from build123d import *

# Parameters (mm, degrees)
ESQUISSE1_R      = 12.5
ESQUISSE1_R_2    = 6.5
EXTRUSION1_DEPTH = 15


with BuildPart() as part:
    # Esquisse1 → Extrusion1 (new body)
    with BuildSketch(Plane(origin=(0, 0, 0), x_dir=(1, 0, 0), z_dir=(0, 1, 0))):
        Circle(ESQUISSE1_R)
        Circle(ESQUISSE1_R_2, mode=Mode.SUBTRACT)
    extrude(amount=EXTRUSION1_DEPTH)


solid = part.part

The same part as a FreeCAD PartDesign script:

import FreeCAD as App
import Part
import Sketcher

doc = App.newDocument("Part")
params = doc.addObject("Spreadsheet::Sheet", "Params")
for row, (alias, value) in enumerate([
    ("sketch1_diameter", "25 mm"),
    ("sketch1_diameter2", "13 mm"),
    ("pad1_length", "15 mm"),
], start=1):
    params.set(f"A{row}", alias)
    params.set(f"B{row}", "=" + value)
    params.setAlias(f"B{row}", alias)

body = doc.addObject("PartDesign::Body", "Body")

sketch1 = body.newObject("Sketcher::SketchObject", "Sketch")
sketch1.AttachmentSupport = (doc.getObject("XZ_Plane"), [""])
sketch1.MapMode = "FlatFace"
sketch1.addGeometry(Part.Circle(App.Vector(0, 0, 0), App.Vector(0, 0, 1), 12), False)
sketch1.addGeometry(Part.Circle(App.Vector(0, 0, 0), App.Vector(0, 0, 1), 6), False)
sketch1.addConstraint(Sketcher.Constraint("Coincident", 0, 3, -1, 1))
sketch1.addConstraint(Sketcher.Constraint("Coincident", 1, 3, -1, 1))
sketch1.addConstraint(Sketcher.Constraint("Diameter", 0, 25.0))
sketch1.addConstraint(Sketcher.Constraint("Diameter", 1, 13.0))
sketch1.setExpression("Constraints[2]", "Params.sketch1_diameter")
sketch1.setExpression("Constraints[3]", "Params.sketch1_diameter2")
pad1 = body.newObject("PartDesign::Pad", "Pad")
pad1.Profile = sketch1
pad1.setExpression("Length", "Params.pad1_length")
pad1.Reversed = True

doc.recompute()
